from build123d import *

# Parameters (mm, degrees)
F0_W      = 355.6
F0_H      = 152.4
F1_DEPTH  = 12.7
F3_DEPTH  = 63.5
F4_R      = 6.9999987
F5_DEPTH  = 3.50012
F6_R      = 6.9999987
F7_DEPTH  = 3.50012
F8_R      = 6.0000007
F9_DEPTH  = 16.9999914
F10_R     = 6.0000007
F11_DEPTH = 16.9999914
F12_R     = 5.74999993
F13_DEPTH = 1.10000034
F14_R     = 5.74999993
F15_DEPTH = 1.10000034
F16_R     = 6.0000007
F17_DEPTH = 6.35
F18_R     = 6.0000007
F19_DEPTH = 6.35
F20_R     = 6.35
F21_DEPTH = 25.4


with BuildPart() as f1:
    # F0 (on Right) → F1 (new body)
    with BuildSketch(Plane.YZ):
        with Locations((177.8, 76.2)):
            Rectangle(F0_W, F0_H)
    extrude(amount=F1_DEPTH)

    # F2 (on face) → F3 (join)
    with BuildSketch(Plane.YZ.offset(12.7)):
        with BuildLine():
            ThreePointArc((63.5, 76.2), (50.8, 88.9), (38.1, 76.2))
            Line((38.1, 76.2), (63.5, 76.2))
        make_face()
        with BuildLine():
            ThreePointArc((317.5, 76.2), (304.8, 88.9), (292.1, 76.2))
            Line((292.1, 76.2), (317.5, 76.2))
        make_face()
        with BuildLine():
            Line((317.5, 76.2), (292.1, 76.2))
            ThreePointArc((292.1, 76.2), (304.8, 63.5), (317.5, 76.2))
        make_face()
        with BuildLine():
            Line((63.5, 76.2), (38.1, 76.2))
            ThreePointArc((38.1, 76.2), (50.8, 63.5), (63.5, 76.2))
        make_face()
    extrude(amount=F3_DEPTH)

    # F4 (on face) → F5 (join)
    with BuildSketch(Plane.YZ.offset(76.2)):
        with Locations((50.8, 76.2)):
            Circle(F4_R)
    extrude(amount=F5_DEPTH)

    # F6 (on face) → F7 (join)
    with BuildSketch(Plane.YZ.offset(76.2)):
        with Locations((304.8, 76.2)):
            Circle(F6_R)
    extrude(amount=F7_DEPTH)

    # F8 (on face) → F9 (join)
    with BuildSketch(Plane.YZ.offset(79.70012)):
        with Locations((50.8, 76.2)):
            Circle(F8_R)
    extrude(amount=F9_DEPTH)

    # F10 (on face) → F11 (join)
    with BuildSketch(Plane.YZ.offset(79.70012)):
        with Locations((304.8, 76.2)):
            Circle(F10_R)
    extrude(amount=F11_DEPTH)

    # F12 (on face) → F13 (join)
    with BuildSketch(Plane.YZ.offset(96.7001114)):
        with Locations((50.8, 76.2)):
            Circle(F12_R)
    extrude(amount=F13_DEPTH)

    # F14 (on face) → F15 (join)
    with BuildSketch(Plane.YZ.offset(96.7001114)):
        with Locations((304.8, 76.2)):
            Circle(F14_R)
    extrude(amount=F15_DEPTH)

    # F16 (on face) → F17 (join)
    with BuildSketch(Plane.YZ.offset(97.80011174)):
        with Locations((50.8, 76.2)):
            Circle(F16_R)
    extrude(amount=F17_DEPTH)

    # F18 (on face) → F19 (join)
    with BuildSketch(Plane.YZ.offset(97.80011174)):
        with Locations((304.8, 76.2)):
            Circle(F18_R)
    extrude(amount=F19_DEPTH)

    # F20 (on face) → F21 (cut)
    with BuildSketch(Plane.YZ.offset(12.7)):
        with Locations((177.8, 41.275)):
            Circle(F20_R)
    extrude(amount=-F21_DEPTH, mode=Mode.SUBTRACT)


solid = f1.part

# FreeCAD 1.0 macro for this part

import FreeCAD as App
import Part
import Sketcher

V = App.Vector
Q = App.Units.Quantity


def add_polygon(sketch, points):
    """Adds a closed chain of lines whose ends are joined by coincident constraints."""
    first, n = sketch.GeometryCount, len(points)
    for a, b in zip(points, points[1:] + points[:1]):
        sketch.addGeometry(Part.LineSegment(App.Vector(*a, 0), App.Vector(*b, 0)), False)
    for i in range(n):
        sketch.addConstraint(Sketcher.Constraint("Coincident", first + i, 2, first + (i + 1) % n, 1))

doc = App.newDocument("Part")
body = doc.addObject("PartDesign::Body", "Body")

sketch1 = doc.addObject("Sketcher::SketchObject", "Sketch")
body.addObject(sketch1)
sketch1.AttachmentSupport = (doc.YZ_Plane, [""])
sketch1.MapMode = "FlatFace"
add_polygon(sketch1, [(0, 152), (0, 0), (356, 0), (356, 152)])
sketch1.addConstraint([
    Sketcher.Constraint("Vertical", 0),
    Sketcher.Constraint("Horizontal", 1),
    Sketcher.Constraint("Vertical", 2),
    Sketcher.Constraint("Horizontal", 3),
    Sketcher.Constraint("Coincident", 0, 2, -1, 1),
    Sketcher.Constraint("DistanceX", 1, 1, 1, 2, Q("14 in")),
    Sketcher.Constraint("DistanceY", 0, 2, 0, 1, Q("6 in")),
])
pad1 = doc.addObject("PartDesign::Pad", "Pad")
body.addObject(pad1)
pad1.Profile = sketch1
pad1.Length = Q("0.5 in")

sketch2 = doc.addObject("Sketcher::SketchObject", "Sketch001")
body.addObject(sketch2)
sketch2.AttachmentSupport = (doc.YZ_Plane, [""])
sketch2.MapMode = "FlatFace"
sketch2.AttachmentOffset = App.Placement(V(0, 0, 0.5 * 25.4), App.Rotation())
sketch2.addGeometry([
    Part.Circle(V(51, 76, 0), V(0, 0, 1), 13),
    Part.Circle(V(305, 76, 0), V(0, 0, 1), 13),
], False)
sketch2.addConstraint([
    Sketcher.Constraint("Equal", 0, 1),
    Sketcher.Constraint("Horizontal", 0, 3, 1, 3),
    Sketcher.Constraint("Diameter", 0, Q("1 in")),
    Sketcher.Constraint("DistanceX", -1, 1, 0, 3, Q("2 in")),
    Sketcher.Constraint("DistanceY", -1, 1, 0, 3, Q("3 in")),
    Sketcher.Constraint("DistanceX", -1, 1, 1, 3, Q("12 in")),
])
pad2 = doc.addObject("PartDesign::Pad", "Pad001")
body.addObject(pad2)
pad2.Profile = sketch2
pad2.Length = Q("2.5 in")

sketch3 = doc.addObject("Sketcher::SketchObject", "Sketch002")
body.addObject(sketch3)
sketch3.AttachmentSupport = (doc.YZ_Plane, [""])
sketch3.MapMode = "FlatFace"
sketch3.AttachmentOffset = App.Placement(V(0, 0, 3 * 25.4), App.Rotation())
sketch3.addGeometry(Part.Circle(V(51, 76, 0), V(0, 0, 1), 7), False)
sketch3.addConstraint([
    Sketcher.Constraint("DistanceX", -1, 1, 0, 3, Q("2 in")),
    Sketcher.Constraint("DistanceY", -1, 1, 0, 3, Q("3 in")),
    Sketcher.Constraint("Diameter", 0, 13.999997),
])
pad3 = doc.addObject("PartDesign::Pad", "Pad002")
body.addObject(pad3)
pad3.Profile = sketch3
pad3.Length = Q("0.1378 in")

sketch4 = doc.addObject("Sketcher::SketchObject", "Sketch003")
body.addObject(sketch4)
sketch4.AttachmentSupport = (doc.YZ_Plane, [""])
sketch4.MapMode = "FlatFace"
sketch4.AttachmentOffset = App.Placement(V(0, 0, 3 * 25.4), App.Rotation())
sketch4.addGeometry(Part.Circle(V(305, 76, 0), V(0, 0, 1), 7), False)
sketch4.addConstraint([
    Sketcher.Constraint("DistanceX", -1, 1, 0, 3, Q("12 in")),
    Sketcher.Constraint("DistanceY", -1, 1, 0, 3, Q("3 in")),
    Sketcher.Constraint("Diameter", 0, 13.999997),
])
pad4 = doc.addObject("PartDesign::Pad", "Pad003")
body.addObject(pad4)
pad4.Profile = sketch4
pad4.Length = Q("0.1378 in")

sketch5 = doc.addObject("Sketcher::SketchObject", "Sketch004")
body.addObject(sketch5)
sketch5.AttachmentSupport = (doc.YZ_Plane, [""])
sketch5.MapMode = "FlatFace"
sketch5.AttachmentOffset = App.Placement(V(0, 0, 3.1378 * 25.4), App.Rotation())
sketch5.addGeometry(Part.Circle(V(51, 76, 0), V(0, 0, 1), 6), False)
sketch5.addConstraint([
    Sketcher.Constraint("DistanceX", -1, 1, 0, 3, Q("2 in")),
    Sketcher.Constraint("DistanceY", -1, 1, 0, 3, Q("3 in")),
    Sketcher.Constraint("Diameter", 0, 12.000001),
])
pad5 = doc.addObject("PartDesign::Pad", "Pad004")
body.addObject(pad5)
pad5.Profile = sketch5
pad5.Length = 16.999991

sketch6 = doc.addObject("Sketcher::SketchObject", "Sketch005")
body.addObject(sketch6)
sketch6.AttachmentSupport = (doc.YZ_Plane, [""])
sketch6.MapMode = "FlatFace"
sketch6.AttachmentOffset = App.Placement(V(0, 0, 3.1378 * 25.4), App.Rotation())
sketch6.addGeometry(Part.Circle(V(305, 76, 0), V(0, 0, 1), 6), False)
sketch6.addConstraint([
    Sketcher.Constraint("DistanceX", -1, 1, 0, 3, Q("12 in")),
    Sketcher.Constraint("DistanceY", -1, 1, 0, 3, Q("3 in")),
    Sketcher.Constraint("Diameter", 0, 12.000001),
])
pad6 = doc.addObject("PartDesign::Pad", "Pad005")
body.addObject(pad6)
pad6.Profile = sketch6
pad6.Length = 16.999991

sketch7 = doc.addObject("Sketcher::SketchObject", "Sketch006")
body.addObject(sketch7)
sketch7.AttachmentSupport = (doc.YZ_Plane, [""])
sketch7.MapMode = "FlatFace"
sketch7.AttachmentOffset = App.Placement(V(0, 0, 96.700111), App.Rotation())
sketch7.addGeometry(Part.Circle(V(51, 76, 0), V(0, 0, 1), 6), False)
sketch7.addConstraint([
    Sketcher.Constraint("DistanceX", -1, 1, 0, 3, Q("2 in")),
    Sketcher.Constraint("DistanceY", -1, 1, 0, 3, Q("3 in")),
    Sketcher.Constraint("Diameter", 0, 11.5),
])
pad7 = doc.addObject("PartDesign::Pad", "Pad006")
body.addObject(pad7)
pad7.Profile = sketch7
pad7.Length = 1.1

sketch8 = doc.addObject("Sketcher::SketchObject", "Sketch007")
body.addObject(sketch8)
sketch8.AttachmentSupport = (doc.YZ_Plane, [""])
sketch8.MapMode = "FlatFace"
sketch8.AttachmentOffset = App.Placement(V(0, 0, 96.700111), App.Rotation())
sketch8.addGeometry(Part.Circle(V(305, 76, 0), V(0, 0, 1), 6), False)
sketch8.addConstraint([
    Sketcher.Constraint("DistanceX", -1, 1, 0, 3, Q("12 in")),
    Sketcher.Constraint("DistanceY", -1, 1, 0, 3, Q("3 in")),
    Sketcher.Constraint("Diameter", 0, 11.5),
])
pad8 = doc.addObject("PartDesign::Pad", "Pad007")
body.addObject(pad8)
pad8.Profile = sketch8
pad8.Length = 1.1

sketch9 = doc.addObject("Sketcher::SketchObject", "Sketch008")
body.addObject(sketch9)
sketch9.AttachmentSupport = (doc.YZ_Plane, [""])
sketch9.MapMode = "FlatFace"
sketch9.AttachmentOffset = App.Placement(V(0, 0, 97.800112), App.Rotation())
sketch9.addGeometry(Part.Circle(V(51, 76, 0), V(0, 0, 1), 6), False)
sketch9.addConstraint([
    Sketcher.Constraint("DistanceX", -1, 1, 0, 3, Q("2 in")),
    Sketcher.Constraint("DistanceY", -1, 1, 0, 3, Q("3 in")),
    Sketcher.Constraint("Diameter", 0, 12.000001),
])
pad9 = doc.addObject("PartDesign::Pad", "Pad008")
body.addObject(pad9)
pad9.Profile = sketch9
pad9.Length = Q("0.25 in")

sketch10 = doc.addObject("Sketcher::SketchObject", "Sketch009")
body.addObject(sketch10)
sketch10.AttachmentSupport = (doc.YZ_Plane, [""])
sketch10.MapMode = "FlatFace"
sketch10.AttachmentOffset = App.Placement(V(0, 0, 97.800112), App.Rotation())
sketch10.addGeometry(Part.Circle(V(305, 76, 0), V(0, 0, 1), 6), False)
sketch10.addConstraint([
    Sketcher.Constraint("DistanceX", -1, 1, 0, 3, Q("12 in")),
    Sketcher.Constraint("DistanceY", -1, 1, 0, 3, Q("3 in")),
    Sketcher.Constraint("Diameter", 0, 12.000001),
])
pad10 = doc.addObject("PartDesign::Pad", "Pad009")
body.addObject(pad10)
pad10.Profile = sketch10
pad10.Length = Q("0.25 in")

sketch11 = doc.addObject("Sketcher::SketchObject", "Sketch010")
body.addObject(sketch11)
sketch11.AttachmentSupport = (doc.YZ_Plane, [""])
sketch11.MapMode = "FlatFace"
sketch11.AttachmentOffset = App.Placement(V(0, 0, 0.5 * 25.4), App.Rotation())
sketch11.addGeometry(Part.Circle(V(178, 41, 0), V(0, 0, 1), 6), False)
sketch11.addConstraint([
    Sketcher.Constraint("Diameter", 0, Q("0.5 in")),
    Sketcher.Constraint("DistanceX", -1, 1, 0, 3, Q("7 in")),
    Sketcher.Constraint("DistanceY", -1, 1, 0, 3, Q("1.625 in")),
])
pocket1 = doc.addObject("PartDesign::Pocket", "Pocket")
body.addObject(pocket1)
pocket1.Profile = sketch11
pocket1.Length = Q("1 in")

doc.recompute()
